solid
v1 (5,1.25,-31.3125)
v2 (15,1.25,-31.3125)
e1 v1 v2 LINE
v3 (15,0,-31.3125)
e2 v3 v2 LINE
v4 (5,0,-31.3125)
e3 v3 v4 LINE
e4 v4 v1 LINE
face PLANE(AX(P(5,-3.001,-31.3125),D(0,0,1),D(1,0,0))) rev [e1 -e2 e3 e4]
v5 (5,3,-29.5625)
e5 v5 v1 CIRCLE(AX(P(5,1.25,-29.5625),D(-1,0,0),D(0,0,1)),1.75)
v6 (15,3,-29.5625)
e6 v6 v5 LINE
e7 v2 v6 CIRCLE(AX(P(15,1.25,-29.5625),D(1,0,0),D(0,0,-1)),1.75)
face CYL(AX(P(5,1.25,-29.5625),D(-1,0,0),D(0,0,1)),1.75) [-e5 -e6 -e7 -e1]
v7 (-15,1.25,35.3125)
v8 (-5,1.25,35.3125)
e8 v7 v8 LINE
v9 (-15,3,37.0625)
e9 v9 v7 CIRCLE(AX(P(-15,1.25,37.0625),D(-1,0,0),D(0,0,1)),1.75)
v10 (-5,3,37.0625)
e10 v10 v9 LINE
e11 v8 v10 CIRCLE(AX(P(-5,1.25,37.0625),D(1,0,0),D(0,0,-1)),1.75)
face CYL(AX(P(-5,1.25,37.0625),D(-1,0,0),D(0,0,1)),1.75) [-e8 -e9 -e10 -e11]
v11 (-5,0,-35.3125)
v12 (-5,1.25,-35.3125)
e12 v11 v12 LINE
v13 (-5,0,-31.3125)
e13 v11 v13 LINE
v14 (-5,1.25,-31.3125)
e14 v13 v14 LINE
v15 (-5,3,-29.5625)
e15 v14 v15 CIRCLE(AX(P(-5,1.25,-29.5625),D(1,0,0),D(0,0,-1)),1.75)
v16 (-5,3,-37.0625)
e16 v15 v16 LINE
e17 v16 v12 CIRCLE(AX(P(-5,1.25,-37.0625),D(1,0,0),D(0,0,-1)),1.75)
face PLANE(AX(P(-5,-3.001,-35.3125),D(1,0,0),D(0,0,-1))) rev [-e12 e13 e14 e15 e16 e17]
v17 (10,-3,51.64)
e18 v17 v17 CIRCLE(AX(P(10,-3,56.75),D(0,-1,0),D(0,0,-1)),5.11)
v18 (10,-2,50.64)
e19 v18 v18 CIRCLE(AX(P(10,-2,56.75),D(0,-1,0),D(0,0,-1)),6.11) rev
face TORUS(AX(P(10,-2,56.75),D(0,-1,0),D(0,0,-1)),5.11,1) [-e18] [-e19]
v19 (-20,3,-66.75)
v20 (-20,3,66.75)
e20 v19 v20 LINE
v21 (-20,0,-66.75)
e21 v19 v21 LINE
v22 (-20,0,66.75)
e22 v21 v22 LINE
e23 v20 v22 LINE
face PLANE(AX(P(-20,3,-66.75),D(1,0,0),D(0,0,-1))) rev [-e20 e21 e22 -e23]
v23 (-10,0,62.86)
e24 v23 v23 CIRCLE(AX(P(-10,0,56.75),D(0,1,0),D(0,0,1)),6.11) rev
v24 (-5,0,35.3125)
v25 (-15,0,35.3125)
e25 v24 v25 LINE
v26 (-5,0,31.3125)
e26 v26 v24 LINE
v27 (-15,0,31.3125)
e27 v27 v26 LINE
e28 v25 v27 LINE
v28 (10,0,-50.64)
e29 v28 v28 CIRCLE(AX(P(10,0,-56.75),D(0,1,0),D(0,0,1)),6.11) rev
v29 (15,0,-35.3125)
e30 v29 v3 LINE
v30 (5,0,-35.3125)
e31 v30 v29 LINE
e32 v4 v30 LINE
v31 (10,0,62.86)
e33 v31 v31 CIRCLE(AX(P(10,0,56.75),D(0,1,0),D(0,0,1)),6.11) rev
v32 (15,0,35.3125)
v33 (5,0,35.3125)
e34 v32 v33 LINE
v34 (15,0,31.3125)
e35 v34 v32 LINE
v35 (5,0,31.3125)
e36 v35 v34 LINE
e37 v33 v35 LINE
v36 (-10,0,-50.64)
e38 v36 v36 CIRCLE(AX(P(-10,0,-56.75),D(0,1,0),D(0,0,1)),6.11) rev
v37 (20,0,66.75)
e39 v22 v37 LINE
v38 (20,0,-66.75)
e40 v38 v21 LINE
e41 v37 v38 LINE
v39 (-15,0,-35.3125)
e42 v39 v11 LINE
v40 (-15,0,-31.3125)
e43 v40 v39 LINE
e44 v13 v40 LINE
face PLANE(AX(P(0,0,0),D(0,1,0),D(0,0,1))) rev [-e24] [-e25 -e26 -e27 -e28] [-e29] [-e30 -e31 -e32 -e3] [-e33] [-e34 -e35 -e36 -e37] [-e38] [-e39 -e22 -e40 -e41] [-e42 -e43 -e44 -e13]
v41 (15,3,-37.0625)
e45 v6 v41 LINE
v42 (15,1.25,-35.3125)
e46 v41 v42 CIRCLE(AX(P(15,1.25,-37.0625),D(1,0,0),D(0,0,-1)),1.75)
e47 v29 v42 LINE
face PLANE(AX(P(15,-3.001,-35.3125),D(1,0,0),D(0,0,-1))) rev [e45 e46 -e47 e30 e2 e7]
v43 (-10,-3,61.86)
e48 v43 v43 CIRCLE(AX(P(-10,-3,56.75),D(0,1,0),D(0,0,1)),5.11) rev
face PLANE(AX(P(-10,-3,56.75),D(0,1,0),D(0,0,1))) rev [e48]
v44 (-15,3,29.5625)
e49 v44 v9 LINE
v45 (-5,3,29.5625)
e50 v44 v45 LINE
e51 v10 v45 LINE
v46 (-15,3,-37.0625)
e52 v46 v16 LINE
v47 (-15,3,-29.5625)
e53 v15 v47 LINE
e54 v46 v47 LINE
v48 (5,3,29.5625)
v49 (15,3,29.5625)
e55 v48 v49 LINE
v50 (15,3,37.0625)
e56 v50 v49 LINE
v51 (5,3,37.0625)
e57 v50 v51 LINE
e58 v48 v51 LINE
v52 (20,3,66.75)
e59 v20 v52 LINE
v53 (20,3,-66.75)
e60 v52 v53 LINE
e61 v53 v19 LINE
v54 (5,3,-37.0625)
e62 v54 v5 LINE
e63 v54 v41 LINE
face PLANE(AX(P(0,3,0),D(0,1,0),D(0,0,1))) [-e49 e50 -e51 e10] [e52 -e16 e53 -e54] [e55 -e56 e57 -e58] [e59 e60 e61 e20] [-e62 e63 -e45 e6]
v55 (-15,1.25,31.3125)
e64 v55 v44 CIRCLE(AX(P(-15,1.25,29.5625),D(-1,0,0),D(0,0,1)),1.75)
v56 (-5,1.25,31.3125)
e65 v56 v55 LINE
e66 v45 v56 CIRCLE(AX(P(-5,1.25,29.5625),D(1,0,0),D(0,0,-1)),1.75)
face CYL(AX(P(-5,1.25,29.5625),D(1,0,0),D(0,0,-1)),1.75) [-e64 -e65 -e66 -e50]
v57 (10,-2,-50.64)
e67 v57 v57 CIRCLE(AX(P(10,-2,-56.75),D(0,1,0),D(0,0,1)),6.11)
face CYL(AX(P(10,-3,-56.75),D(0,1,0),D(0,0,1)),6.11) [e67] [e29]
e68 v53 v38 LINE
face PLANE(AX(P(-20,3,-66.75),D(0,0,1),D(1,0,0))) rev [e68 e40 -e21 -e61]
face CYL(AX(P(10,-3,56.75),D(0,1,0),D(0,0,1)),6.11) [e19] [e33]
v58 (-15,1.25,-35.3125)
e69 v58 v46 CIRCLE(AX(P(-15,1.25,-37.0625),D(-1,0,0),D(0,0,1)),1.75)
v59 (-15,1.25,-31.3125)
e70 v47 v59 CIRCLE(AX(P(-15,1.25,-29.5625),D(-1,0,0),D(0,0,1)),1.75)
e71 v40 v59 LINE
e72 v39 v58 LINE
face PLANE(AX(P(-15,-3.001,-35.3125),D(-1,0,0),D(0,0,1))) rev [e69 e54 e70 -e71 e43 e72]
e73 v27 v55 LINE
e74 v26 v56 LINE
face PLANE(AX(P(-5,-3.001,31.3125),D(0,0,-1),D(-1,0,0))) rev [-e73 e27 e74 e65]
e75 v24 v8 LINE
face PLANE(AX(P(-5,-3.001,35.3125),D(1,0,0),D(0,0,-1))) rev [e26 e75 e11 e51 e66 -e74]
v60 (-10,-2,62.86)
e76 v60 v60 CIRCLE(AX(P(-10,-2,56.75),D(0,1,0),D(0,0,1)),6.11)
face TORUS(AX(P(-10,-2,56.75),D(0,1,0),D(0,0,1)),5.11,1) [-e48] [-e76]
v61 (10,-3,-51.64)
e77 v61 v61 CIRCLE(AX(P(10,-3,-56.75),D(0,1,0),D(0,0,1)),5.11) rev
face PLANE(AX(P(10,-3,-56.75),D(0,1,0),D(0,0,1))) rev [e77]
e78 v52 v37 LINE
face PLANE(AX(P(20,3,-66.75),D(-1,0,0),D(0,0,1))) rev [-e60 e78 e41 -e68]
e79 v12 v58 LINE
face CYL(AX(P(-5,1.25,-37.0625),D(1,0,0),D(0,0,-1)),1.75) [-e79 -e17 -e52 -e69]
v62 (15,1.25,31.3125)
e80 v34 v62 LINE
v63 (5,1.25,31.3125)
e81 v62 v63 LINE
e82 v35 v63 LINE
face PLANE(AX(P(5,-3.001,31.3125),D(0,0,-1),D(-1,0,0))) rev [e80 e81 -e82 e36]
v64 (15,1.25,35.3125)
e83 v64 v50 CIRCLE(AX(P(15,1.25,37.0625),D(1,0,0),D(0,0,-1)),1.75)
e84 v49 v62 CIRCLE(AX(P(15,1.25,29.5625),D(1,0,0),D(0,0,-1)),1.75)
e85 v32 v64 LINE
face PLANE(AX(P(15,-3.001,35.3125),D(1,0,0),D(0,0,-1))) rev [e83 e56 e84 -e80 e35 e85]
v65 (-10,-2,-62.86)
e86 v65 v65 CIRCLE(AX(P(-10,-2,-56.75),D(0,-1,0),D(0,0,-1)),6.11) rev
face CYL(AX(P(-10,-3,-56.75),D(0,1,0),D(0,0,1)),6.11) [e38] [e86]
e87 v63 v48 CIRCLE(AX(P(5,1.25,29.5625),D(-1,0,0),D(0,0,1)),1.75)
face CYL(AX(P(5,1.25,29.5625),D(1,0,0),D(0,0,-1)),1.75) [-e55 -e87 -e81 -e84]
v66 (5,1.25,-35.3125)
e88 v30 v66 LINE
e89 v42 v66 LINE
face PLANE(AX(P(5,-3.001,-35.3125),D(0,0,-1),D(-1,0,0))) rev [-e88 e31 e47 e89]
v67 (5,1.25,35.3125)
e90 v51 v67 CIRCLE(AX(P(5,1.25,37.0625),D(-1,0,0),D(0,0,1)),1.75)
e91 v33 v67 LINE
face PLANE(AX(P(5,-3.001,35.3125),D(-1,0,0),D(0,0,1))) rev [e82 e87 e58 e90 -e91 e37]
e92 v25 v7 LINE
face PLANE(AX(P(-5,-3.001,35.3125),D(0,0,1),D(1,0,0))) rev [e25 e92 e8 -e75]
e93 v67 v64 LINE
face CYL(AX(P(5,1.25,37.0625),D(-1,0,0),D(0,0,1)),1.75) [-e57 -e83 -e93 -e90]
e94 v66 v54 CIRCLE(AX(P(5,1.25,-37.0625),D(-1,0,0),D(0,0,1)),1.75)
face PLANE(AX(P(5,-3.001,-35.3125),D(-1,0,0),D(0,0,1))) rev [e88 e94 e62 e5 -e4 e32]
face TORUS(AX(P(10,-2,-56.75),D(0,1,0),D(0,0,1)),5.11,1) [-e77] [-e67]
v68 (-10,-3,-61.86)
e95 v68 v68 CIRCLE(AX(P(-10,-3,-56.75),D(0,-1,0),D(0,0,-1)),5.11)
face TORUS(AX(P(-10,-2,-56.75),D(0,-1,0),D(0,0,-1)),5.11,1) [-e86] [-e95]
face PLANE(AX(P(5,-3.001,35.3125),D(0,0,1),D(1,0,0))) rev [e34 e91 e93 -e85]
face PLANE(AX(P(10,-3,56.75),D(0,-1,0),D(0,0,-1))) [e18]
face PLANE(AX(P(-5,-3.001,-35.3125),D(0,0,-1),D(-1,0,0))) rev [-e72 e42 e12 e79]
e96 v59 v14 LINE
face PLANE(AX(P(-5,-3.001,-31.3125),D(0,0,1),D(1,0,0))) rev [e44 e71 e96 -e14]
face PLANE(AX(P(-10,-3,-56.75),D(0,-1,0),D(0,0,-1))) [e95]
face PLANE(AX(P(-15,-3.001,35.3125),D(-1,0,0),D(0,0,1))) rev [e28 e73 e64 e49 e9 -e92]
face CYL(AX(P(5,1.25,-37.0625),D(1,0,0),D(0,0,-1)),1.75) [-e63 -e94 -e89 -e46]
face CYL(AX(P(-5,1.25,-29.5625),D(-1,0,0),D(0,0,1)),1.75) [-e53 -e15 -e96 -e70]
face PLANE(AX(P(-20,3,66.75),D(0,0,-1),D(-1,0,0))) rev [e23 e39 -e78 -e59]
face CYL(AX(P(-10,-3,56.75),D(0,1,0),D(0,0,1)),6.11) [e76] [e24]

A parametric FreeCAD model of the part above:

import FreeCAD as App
import Part
import Sketcher

V = App.Vector


def edges_at(feature, points):
    """Names of the edges that pass closest to the given points."""
    edges = feature.Shape.Edges
    near = lambda p: min(range(len(edges)), key=lambda i: edges[i].distToShape(Part.Vertex(*p))[0])
    return sorted({f"Edge{near(p) + 1}" for p in points})


def add_polygon(sketch, points):
    """Adds a closed chain of lines whose ends are joined by coincident constraints."""
    first, n = sketch.GeometryCount, len(points)
    for a, b in zip(points, points[1:] + points[:1]):
        sketch.addGeometry(Part.LineSegment(App.Vector(*a, 0), App.Vector(*b, 0)), False)
    for i in range(n):
        sketch.addConstraint(Sketcher.Constraint("Coincident", first + i, 2, first + (i + 1) % n, 1))

doc = App.newDocument("Part")
body = doc.addObject("PartDesign::Body", "Body")

# Sketch on XZ plane
sketch1 = body.newObject("Sketcher::SketchObject", "Sketch")
sketch1.AttachmentSupport = (doc.getObject("XZ_Plane"), [""])
sketch1.MapMode = "FlatFace"
add_polygon(sketch1, [(-20, -67), (-20, 67), (20, 67), (20, -67)])  # lines 0-3
sketch1.addConstraint(Sketcher.Constraint("Vertical", 0))
sketch1.addConstraint(Sketcher.Constraint("Horizontal", 1))
sketch1.addConstraint(Sketcher.Constraint("Vertical", 2))
sketch1.addConstraint(Sketcher.Constraint("Horizontal", 3))
sketch1.addConstraint(Sketcher.Constraint("Symmetric", 0, 2, 2, 2, -1, 1))
sketch1.addConstraint(Sketcher.Constraint("DistanceX", 1, 1, 1, 2, 40.0))
sketch1.addConstraint(Sketcher.Constraint("DistanceY", 0, 1, 0, 2, 133.5))
pad1 = body.newObject("PartDesign::Pad", "Pad")
pad1.Profile = sketch1
pad1.Length = 3
pad1.Reversed = True

# Sketch on XZ plane
sketch2 = body.newObject("Sketcher::SketchObject", "Sketch001")
sketch2.AttachmentSupport = (doc.getObject("XZ_Plane"), [""])
sketch2.MapMode = "FlatFace"
sketch2.addGeometry(Part.Circle(V(10, 57, 0), V(0, 0, 1), 6), False)
sketch2.addGeometry(Part.Circle(V(-10, 57, 0), V(0, 0, 1), 6), False)
sketch2.addGeometry(Part.Circle(V(-10, -57, 0), V(0, 0, 1), 6), False)
sketch2.addGeometry(Part.Circle(V(10, -57, 0), V(0, 0, 1), 6), False)
sketch2.addConstraint(Sketcher.Constraint("Equal", 0, 1))
sketch2.addConstraint(Sketcher.Constraint("Equal", 1, 2))
sketch2.addConstraint(Sketcher.Constraint("Equal", 2, 3))
sketch2.addConstraint(Sketcher.Constraint("Symmetric", 0, 3, 2, 3, -1, 1))
sketch2.addConstraint(Sketcher.Constraint("Symmetric", 1, 3, 3, 3, -1, 1))
sketch2.addConstraint(Sketcher.Constraint("Symmetric", 0, 3, 1, 3, -2))
sketch2.addConstraint(Sketcher.Constraint("Diameter", 0, 12.22))
sketch2.addConstraint(Sketcher.Constraint("DistanceX", -1, 1, 0, 3, 10.0))
sketch2.addConstraint(Sketcher.Constraint("DistanceY", 2, 3, 1, 3, 113.5))
pad2 = body.newObject("PartDesign::Pad", "Pad001")
pad2.Profile = sketch2
pad2.Length = 3

# Sketch on XZ plane
sketch3 = body.newObject("Sketcher::SketchObject", "Sketch002")
sketch3.AttachmentSupport = (doc.getObject("XZ_Plane"), [""])
sketch3.MapMode = "FlatFace"
sketch3.AttachmentOffset = App.Placement(V(0, 0, -3), App.Rotation())
add_polygon(sketch3, [(5, -35.3), (5, -31.3), (15, -31.3), (15, -35.3)])  # lines 0-3
sketch3.addConstraint(Sketcher.Constraint("Vertical", 0))
sketch3.addConstraint(Sketcher.Constraint("Horizontal", 1))
sketch3.addConstraint(Sketcher.Constraint("Vertical", 2))
sketch3.addConstraint(Sketcher.Constraint("Horizontal", 3))
sketch3.addConstraint(Sketcher.Constraint("DistanceX", 1, 1, 1, 2, 10.0))
sketch3.addConstraint(Sketcher.Constraint("DistanceY", 0, 1, 0, 2, 4.0))
sketch3.addConstraint(Sketcher.Constraint("DistanceX", -1, 1, 0, 2, 5.0))
sketch3.addConstraint(Sketcher.Constraint("DistanceY", 0, 2, -1, 1, 31.3125))
pocket1 = body.newObject("PartDesign::Pocket", "Pocket")
pocket1.Profile = sketch3
pocket1.Type = "UpToFirst"
pocket1.Reversed = True

# Sketch on XZ plane
sketch4 = body.newObject("Sketcher::SketchObject", "Sketch003")
sketch4.AttachmentSupport = (doc.getObject("XZ_Plane"), [""])
sketch4.MapMode = "FlatFace"
sketch4.AttachmentOffset = App.Placement(V(0, 0, -3), App.Rotation())
add_polygon(sketch4, [(-15, -35.3), (-15, -31.3), (-5, -31.3), (-5, -35.3)])  # lines 0-3
sketch4.addConstraint(Sketcher.Constraint("Vertical", 0))
sketch4.addConstraint(Sketcher.Constraint("Horizontal", 1))
sketch4.addConstraint(Sketcher.Constraint("Vertical", 2))
sketch4.addConstraint(Sketcher.Constraint("Horizontal", 3))
sketch4.addConstraint(Sketcher.Constraint("DistanceX", 1, 1, 1, 2, 10.0))
sketch4.addConstraint(Sketcher.Constraint("DistanceY", 0, 1, 0, 2, 4.0))
sketch4.addConstraint(Sketcher.Constraint("DistanceX", 0, 2, -1, 1, 15.0))
sketch4.addConstraint(Sketcher.Constraint("DistanceY", 0, 2, -1, 1, 31.3125))
pocket2 = body.newObject("PartDesign::Pocket", "Pocket001")
pocket2.Profile = sketch4
pocket2.Type = "UpToFirst"
pocket2.Reversed = True

# Sketch on XZ plane
sketch5 = body.newObject("Sketcher::SketchObject", "Sketch004")
sketch5.AttachmentSupport = (doc.getObject("XZ_Plane"), [""])
sketch5.MapMode = "FlatFace"
sketch5.AttachmentOffset = App.Placement(V(0, 0, -3), App.Rotation())
add_polygon(sketch5, [(-15, 31.3), (-15, 35.3), (-5, 35.3), (-5, 31.3)])  # lines 0-3
sketch5.addConstraint(Sketcher.Constraint("Vertical", 0))
sketch5.addConstraint(Sketcher.Constraint("Horizontal", 1))
sketch5.addConstraint(Sketcher.Constraint("Vertical", 2))
sketch5.addConstraint(Sketcher.Constraint("Horizontal", 3))
sketch5.addConstraint(Sketcher.Constraint("DistanceX", 1, 1, 1, 2, 10.0))
sketch5.addConstraint(Sketcher.Constraint("DistanceY", 0, 1, 0, 2, 4.0))
sketch5.addConstraint(Sketcher.Constraint("DistanceX", 0, 2, -1, 1, 15.0))
sketch5.addConstraint(Sketcher.Constraint("DistanceY", -1, 1, 0, 2, 35.3125))
pocket3 = body.newObject("PartDesign::Pocket", "Pocket002")
pocket3.Profile = sketch5
pocket3.Type = "UpToFirst"
pocket3.Reversed = True

# Sketch on XZ plane
sketch6 = body.newObject("Sketcher::SketchObject", "Sketch005")
sketch6.AttachmentSupport = (doc.getObject("XZ_Plane"), [""])
sketch6.MapMode = "FlatFace"
sketch6.AttachmentOffset = App.Placement(V(0, 0, -3), App.Rotation())
add_polygon(sketch6, [(5, 31.3), (5, 35.3), (15, 35.3), (15, 31.3)])  # lines 0-3
sketch6.addConstraint(Sketcher.Constraint("Vertical", 0))
sketch6.addConstraint(Sketcher.Constraint("Horizontal", 1))
sketch6.addConstraint(Sketcher.Constraint("Vertical", 2))
sketch6.addConstraint(Sketcher.Constraint("Horizontal", 3))
sketch6.addConstraint(Sketcher.Constraint("DistanceX", 1, 1, 1, 2, 10.0))
sketch6.addConstraint(Sketcher.Constraint("DistanceY", 0, 1, 0, 2, 4.0))
sketch6.addConstraint(Sketcher.Constraint("DistanceX", -1, 1, 0, 2, 5.0))
sketch6.addConstraint(Sketcher.Constraint("DistanceY", -1, 1, 0, 2, 35.3125))
pocket4 = body.newObject("PartDesign::Pocket", "Pocket003")
pocket4.Profile = sketch6
pocket4.Type = "UpToFirst"
pocket4.Reversed = True
doc.recompute()

fillet = body.newObject("PartDesign::Fillet", "Fillet")
fillet.Base = (pocket4, edges_at(pocket4, [
    (10, 3, 35.312),
    (10, 3, 31.312),
    (-10, 3, 35.312),
    (-10, 3, 31.312),
    (-10, 3, -35.312),
    (-10, 3, -31.312),
    (10, 3, -35.312),
    (10, 3, -31.312),
]))
fillet.Radius = 1.75
doc.recompute()

fillet2 = body.newObject("PartDesign::Fillet", "Fillet001")
fillet2.Base = (fillet, edges_at(fillet, [
    (10, -3, -62.86),
    (-10, -3, -62.86),
    (-10, -3, 50.64),
    (10, -3, 50.64),
]))
fillet2.Radius = 1

doc.recompute()
